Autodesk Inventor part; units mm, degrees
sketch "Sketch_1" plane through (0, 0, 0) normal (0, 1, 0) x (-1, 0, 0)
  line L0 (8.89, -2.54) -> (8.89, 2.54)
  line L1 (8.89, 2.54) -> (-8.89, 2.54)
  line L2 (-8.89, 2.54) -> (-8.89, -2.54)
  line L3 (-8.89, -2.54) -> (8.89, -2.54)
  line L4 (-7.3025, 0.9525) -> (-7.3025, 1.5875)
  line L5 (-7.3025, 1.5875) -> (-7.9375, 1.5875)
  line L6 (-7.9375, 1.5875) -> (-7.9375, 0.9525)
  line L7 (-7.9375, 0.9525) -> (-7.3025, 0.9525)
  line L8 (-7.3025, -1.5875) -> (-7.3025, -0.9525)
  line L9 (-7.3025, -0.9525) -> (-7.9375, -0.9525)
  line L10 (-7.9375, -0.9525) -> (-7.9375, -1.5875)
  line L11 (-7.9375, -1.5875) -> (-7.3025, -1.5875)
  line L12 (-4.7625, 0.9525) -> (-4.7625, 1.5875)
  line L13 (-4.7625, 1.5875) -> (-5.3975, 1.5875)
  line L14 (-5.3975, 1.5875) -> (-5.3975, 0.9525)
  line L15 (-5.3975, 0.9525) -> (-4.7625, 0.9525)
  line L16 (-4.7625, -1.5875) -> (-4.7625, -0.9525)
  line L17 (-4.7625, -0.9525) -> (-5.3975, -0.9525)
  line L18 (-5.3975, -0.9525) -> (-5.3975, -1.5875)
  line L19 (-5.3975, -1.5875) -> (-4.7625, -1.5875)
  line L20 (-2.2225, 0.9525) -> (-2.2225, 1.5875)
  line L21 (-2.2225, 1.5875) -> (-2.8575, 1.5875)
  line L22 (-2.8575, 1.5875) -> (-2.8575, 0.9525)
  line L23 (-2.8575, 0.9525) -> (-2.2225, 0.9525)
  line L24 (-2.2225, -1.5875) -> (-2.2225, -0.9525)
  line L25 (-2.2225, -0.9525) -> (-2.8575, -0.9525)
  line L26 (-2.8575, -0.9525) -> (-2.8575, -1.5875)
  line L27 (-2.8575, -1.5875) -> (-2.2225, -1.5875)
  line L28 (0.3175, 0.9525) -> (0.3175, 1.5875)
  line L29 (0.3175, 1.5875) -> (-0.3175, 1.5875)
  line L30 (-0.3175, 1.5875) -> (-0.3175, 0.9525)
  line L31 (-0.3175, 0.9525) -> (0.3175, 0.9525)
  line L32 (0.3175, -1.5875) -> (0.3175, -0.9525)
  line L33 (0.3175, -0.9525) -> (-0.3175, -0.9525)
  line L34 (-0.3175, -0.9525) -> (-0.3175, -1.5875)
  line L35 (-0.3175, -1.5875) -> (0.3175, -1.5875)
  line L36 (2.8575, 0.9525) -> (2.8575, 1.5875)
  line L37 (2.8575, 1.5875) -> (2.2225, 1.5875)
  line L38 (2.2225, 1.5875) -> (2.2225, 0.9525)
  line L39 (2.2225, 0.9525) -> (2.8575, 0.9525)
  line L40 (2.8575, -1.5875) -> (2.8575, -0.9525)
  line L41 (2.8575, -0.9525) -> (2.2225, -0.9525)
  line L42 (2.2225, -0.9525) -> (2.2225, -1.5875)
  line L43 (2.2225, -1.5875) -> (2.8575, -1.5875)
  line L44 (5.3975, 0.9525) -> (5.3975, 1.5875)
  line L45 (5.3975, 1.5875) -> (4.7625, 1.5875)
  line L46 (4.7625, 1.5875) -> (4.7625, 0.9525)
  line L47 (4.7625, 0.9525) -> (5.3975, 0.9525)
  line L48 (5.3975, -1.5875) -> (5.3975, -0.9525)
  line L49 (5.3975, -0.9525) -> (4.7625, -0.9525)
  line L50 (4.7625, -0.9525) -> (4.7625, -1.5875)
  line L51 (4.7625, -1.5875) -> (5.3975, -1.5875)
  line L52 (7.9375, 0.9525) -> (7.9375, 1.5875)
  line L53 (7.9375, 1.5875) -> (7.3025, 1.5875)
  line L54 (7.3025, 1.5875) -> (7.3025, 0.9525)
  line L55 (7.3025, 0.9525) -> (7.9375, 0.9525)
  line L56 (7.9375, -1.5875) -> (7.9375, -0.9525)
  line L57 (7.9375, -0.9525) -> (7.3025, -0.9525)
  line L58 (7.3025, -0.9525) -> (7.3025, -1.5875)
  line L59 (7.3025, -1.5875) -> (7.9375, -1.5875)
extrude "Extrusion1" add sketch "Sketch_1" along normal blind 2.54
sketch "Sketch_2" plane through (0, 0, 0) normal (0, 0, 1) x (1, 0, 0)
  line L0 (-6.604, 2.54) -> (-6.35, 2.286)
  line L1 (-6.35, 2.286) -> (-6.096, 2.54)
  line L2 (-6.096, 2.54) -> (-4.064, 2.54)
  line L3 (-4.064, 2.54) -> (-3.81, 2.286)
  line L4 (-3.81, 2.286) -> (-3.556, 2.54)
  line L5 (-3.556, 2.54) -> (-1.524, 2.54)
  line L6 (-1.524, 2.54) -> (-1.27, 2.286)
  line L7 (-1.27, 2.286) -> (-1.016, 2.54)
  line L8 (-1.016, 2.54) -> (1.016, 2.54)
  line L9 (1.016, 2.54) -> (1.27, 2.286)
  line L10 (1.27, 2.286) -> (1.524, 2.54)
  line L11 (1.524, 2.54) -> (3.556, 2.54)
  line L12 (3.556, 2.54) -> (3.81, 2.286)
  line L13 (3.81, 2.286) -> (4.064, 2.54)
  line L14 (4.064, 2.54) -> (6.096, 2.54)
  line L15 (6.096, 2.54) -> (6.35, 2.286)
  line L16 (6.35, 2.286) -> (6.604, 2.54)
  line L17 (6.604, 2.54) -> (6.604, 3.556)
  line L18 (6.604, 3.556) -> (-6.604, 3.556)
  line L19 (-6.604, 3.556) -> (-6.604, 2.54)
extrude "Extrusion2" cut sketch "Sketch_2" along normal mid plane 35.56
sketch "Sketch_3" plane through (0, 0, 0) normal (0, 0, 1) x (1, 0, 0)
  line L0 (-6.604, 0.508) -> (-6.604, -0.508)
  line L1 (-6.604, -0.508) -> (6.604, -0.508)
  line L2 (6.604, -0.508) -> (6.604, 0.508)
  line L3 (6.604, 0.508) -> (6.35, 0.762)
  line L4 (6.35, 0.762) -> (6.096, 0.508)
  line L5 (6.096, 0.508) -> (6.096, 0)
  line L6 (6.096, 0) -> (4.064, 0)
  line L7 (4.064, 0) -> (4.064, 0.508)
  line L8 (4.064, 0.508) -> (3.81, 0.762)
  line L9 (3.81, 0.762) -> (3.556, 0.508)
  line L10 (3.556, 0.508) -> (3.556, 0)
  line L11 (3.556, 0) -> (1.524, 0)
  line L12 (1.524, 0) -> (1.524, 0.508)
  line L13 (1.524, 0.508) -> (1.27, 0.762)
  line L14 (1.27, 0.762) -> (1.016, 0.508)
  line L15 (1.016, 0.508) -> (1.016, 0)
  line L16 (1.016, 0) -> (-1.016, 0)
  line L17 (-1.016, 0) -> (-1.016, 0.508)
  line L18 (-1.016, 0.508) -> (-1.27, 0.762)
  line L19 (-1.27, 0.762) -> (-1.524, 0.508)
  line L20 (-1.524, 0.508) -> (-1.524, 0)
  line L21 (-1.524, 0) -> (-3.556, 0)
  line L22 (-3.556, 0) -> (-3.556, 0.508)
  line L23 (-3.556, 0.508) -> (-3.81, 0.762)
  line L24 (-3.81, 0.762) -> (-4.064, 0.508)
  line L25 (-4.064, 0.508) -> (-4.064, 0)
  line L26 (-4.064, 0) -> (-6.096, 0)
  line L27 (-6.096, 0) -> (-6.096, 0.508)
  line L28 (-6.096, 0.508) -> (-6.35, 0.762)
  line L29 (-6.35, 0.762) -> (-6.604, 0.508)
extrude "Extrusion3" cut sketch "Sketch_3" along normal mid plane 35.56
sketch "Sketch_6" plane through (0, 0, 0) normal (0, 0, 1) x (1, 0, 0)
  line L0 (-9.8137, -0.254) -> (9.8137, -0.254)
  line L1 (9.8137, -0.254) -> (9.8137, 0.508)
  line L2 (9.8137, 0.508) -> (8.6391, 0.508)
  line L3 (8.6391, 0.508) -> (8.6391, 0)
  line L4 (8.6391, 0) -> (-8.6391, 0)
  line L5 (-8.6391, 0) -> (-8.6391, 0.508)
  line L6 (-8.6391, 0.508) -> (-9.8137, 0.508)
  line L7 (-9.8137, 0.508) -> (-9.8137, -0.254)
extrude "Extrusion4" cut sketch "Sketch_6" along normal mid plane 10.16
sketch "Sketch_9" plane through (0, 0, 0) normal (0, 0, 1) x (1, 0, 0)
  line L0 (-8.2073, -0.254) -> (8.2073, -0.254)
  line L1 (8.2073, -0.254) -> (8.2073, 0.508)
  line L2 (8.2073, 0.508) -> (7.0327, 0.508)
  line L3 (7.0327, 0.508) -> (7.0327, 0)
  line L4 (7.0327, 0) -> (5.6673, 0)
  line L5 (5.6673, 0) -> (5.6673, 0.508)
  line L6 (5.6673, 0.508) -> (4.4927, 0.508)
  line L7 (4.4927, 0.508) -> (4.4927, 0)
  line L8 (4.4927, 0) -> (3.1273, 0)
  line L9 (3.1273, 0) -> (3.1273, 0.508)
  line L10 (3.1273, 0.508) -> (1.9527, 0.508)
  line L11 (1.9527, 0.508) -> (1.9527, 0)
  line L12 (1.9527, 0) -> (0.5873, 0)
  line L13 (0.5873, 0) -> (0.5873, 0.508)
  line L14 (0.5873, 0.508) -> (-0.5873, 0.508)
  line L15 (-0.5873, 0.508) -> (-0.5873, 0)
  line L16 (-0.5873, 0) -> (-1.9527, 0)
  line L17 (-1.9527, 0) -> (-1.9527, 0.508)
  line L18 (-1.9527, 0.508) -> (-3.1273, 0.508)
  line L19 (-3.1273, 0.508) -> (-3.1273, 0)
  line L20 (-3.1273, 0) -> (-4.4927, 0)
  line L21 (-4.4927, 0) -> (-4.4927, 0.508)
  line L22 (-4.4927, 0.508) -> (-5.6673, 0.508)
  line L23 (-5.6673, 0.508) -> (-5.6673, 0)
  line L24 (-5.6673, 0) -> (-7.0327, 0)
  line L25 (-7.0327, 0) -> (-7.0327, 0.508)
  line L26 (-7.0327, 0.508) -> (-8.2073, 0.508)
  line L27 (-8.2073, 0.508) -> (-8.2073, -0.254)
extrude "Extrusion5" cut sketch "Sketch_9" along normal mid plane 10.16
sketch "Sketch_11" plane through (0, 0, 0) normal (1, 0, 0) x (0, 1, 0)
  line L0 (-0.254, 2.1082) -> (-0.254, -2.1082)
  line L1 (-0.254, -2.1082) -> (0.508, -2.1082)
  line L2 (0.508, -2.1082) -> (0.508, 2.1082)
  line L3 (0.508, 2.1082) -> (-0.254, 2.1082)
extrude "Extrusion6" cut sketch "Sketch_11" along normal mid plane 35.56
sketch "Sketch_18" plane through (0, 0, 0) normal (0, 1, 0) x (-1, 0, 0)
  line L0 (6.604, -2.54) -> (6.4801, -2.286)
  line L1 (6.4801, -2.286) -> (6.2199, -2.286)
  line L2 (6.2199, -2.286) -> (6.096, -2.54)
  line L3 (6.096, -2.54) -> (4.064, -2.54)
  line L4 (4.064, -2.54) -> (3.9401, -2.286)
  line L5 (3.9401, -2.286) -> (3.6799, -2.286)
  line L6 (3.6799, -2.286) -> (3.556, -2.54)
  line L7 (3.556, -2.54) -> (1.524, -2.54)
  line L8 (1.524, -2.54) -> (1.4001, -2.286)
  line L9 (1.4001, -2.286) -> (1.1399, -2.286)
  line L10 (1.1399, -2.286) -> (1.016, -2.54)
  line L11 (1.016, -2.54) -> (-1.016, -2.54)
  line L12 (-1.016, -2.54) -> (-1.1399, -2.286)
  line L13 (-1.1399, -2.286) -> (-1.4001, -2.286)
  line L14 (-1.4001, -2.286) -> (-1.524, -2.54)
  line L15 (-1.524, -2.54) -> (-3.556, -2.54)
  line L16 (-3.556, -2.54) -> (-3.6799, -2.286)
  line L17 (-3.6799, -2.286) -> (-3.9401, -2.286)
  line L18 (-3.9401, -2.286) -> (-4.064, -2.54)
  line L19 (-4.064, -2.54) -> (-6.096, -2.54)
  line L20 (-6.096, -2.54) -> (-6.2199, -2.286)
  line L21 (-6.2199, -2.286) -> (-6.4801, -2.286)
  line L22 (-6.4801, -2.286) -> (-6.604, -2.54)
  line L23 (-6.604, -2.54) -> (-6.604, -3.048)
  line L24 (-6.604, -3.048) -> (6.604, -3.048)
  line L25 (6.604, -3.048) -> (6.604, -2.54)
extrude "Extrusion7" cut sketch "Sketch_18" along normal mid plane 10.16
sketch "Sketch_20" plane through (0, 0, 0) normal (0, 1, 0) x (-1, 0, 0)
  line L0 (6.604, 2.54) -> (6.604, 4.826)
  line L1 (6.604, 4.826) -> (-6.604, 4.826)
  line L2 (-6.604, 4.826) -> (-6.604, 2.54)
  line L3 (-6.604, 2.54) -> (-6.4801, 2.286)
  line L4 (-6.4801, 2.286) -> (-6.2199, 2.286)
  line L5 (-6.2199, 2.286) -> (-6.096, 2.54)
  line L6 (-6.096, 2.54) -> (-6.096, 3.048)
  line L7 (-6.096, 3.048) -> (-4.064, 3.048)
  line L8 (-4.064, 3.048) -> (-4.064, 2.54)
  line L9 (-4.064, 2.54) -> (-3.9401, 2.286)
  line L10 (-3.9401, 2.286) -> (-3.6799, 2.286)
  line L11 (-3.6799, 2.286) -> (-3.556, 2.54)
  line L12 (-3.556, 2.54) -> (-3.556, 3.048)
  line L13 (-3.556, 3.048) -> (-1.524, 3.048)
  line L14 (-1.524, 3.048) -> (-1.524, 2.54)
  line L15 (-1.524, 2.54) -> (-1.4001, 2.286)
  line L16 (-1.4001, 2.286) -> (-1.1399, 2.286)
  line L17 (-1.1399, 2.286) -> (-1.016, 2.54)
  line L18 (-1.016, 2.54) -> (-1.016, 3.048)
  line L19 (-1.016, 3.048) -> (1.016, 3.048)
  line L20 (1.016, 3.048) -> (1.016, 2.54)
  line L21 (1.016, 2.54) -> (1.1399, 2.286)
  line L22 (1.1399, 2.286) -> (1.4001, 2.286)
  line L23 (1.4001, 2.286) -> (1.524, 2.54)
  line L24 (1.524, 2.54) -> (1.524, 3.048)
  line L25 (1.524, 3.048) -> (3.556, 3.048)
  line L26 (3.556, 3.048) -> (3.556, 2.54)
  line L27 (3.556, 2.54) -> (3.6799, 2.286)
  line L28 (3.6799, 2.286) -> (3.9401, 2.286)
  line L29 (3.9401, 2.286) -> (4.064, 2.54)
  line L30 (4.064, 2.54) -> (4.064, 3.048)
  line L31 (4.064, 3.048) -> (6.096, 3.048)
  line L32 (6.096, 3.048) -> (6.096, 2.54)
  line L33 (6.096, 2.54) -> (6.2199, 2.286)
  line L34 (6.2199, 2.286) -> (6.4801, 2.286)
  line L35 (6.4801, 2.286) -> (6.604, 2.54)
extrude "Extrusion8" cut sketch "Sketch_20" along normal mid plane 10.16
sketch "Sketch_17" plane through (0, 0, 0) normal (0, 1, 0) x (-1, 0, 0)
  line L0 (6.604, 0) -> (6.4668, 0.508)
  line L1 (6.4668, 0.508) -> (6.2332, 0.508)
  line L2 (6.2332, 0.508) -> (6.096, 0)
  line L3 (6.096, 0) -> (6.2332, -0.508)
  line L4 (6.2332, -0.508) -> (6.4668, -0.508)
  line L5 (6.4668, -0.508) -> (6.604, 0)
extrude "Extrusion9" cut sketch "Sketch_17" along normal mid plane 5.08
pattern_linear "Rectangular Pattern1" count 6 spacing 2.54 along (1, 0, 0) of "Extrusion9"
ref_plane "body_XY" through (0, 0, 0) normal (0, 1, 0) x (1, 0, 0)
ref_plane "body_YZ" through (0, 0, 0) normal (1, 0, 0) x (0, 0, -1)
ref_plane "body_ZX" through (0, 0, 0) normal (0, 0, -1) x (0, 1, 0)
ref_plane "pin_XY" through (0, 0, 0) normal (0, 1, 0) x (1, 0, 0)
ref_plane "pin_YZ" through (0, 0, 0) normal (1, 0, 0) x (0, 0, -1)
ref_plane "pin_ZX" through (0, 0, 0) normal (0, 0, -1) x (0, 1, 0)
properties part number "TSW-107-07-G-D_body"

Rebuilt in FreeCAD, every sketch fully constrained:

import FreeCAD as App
import Part
import Sketcher

V = App.Vector
Q = App.Units.Quantity


def add_polygon(sketch, points):
    """Adds a closed chain of lines whose ends are joined by coincident constraints."""
    first, n = sketch.GeometryCount, len(points)
    for a, b in zip(points, points[1:] + points[:1]):
        sketch.addGeometry(Part.LineSegment(App.Vector(*a, 0), App.Vector(*b, 0)), False)
    for i in range(n):
        sketch.addConstraint(Sketcher.Constraint("Coincident", first + i, 2, first + (i + 1) % n, 1))

doc = App.newDocument("Part")
params = doc.addObject("Spreadsheet::Sheet", "Params")
for row, (alias, value) in enumerate([
    ("sketch1_width", "0.7 in"),
    ("sketch1_height", "0.2 in"),
    ("sketch1_width2", "0.025 in"),
    ("pad1_length", "0.1 in"),
    ("sketch2_width", "0.08 in"),
    ("sketch2_width2", "0.52 in"),
    ("sketch2_height", "0.04 in"),
    ("pocket1_length", "1.4 in"),
    ("sketch3_width", "0.52 in"),
    ("sketch3_width2", "0.08 in"),
    ("sketch3_height", "0.04 in"),
    ("pocket2_length", "1.4 in"),
    ("sketch4_height", "0.03 in"),
    ("sketch4_height2", "0.02 in"),
    ("pocket3_length", "0.4 in"),
    ("sketch5_height", "0.03 in"),
    ("sketch5_height2", "0.02 in"),
    ("pocket4_length", "0.4 in"),
    ("sketch6_width", "0.03 in"),
    ("sketch6_height", "0.166 in"),
    ("pocket5_length", "1.4 in"),
    ("sketch7_width", "0.08 in"),
    ("sketch7_width2", "0.52 in"),
    ("sketch7_height", "0.02 in"),
    ("pocket6_length", "0.4 in"),
    ("sketch8_width", "0.52 in"),
    ("sketch8_width2", "0.08 in"),
    ("sketch8_height", "0.09 in"),
    ("sketch8_height2", "0.02 in"),
    ("pocket7_length", "0.4 in"),
    ("pocket8_length", "0.2 in"),
    ("linearpattern_pitch", "0.1 in"),
], start=1):
    params.set(f"A{row}", alias)
    params.set(f"B{row}", "=" + value)
    params.setAlias(f"B{row}", alias)

body = doc.addObject("PartDesign::Body", "Body")

# Sketch on XZ plane
sketch1 = doc.addObject("Sketcher::SketchObject", "Sketch")
body.addObject(sketch1)
sketch1.AttachmentSupport = (doc.XZ_Plane, [""])
sketch1.MapMode = "FlatFace"
add_polygon(sketch1, [(8.9, -2.5), (-8.9, -2.5), (-8.9, 2.5), (8.9, 2.5)])  # lines 0-3
add_polygon(sketch1, [(7.3, -1), (7.3, -1.6), (7.9, -1.6), (7.9, -1)])  # lines 4-7
add_polygon(sketch1, [(4.8, -1), (4.8, -1.6), (5.4, -1.6), (5.4, -1)])  # lines 8-11
add_polygon(sketch1, [(2.2, -1), (2.2, -1.6), (2.9, -1.6), (2.9, -1)])  # lines 12-15
add_polygon(sketch1, [(-0.3, -1), (-0.3, -1.6), (0.3, -1.6), (0.3, -1)])  # lines 16-19
add_polygon(sketch1, [(-2.9, -1), (-2.9, -1.6), (-2.2, -1.6), (-2.2, -1)])  # lines 20-23
add_polygon(sketch1, [(-5.4, -1), (-5.4, -1.6), (-4.8, -1.6), (-4.8, -1)])  # lines 24-27
add_polygon(sketch1, [(-7.9, -1), (-7.9, -1.6), (-7.3, -1.6), (-7.3, -1)])  # lines 28-31
add_polygon(sketch1, [(7.3, 1.6), (7.3, 1), (7.9, 1), (7.9, 1.6)])  # lines 32-35
add_polygon(sketch1, [(4.8, 1.6), (4.8, 1), (5.4, 1), (5.4, 1.6)])  # lines 36-39
add_polygon(sketch1, [(2.2, 1.6), (2.2, 1), (2.9, 1), (2.9, 1.6)])  # lines 40-43
add_polygon(sketch1, [(-0.3, 1.6), (-0.3, 1), (0.3, 1), (0.3, 1.6)])  # lines 44-47
add_polygon(sketch1, [(-2.9, 1.6), (-2.9, 1), (-2.2, 1), (-2.2, 1.6)])  # lines 48-51
add_polygon(sketch1, [(-5.4, 1.6), (-5.4, 1), (-4.8, 1), (-4.8, 1.6)])  # lines 52-55
add_polygon(sketch1, [(-7.9, 1.6), (-7.9, 1), (-7.3, 1), (-7.3, 1.6)])  # lines 56-59
sketch1.addConstraint(Sketcher.Constraint("Horizontal", 0))
sketch1.addConstraint(Sketcher.Constraint("Vertical", 1))
sketch1.addConstraint(Sketcher.Constraint("Horizontal", 2))
sketch1.addConstraint(Sketcher.Constraint("Vertical", 3))
sketch1.addConstraint(Sketcher.Constraint("Vertical", 4))
sketch1.addConstraint(Sketcher.Constraint("Horizontal", 5))
sketch1.addConstraint(Sketcher.Constraint("Vertical", 6))
sketch1.addConstraint(Sketcher.Constraint("Horizontal", 7))
sketch1.addConstraint(Sketcher.Constraint("Vertical", 8))
sketch1.addConstraint(Sketcher.Constraint("Horizontal", 9))
sketch1.addConstraint(Sketcher.Constraint("Vertical", 10))
sketch1.addConstraint(Sketcher.Constraint("Horizontal", 11))
sketch1.addConstraint(Sketcher.Constraint("Vertical", 12))
sketch1.addConstraint(Sketcher.Constraint("Horizontal", 13))
sketch1.addConstraint(Sketcher.Constraint("Vertical", 14))
sketch1.addConstraint(Sketcher.Constraint("Horizontal", 15))
sketch1.addConstraint(Sketcher.Constraint("Vertical", 16))
sketch1.addConstraint(Sketcher.Constraint("Horizontal", 17))
sketch1.addConstraint(Sketcher.Constraint("Vertical", 18))
sketch1.addConstraint(Sketcher.Constraint("Horizontal", 19))
sketch1.addConstraint(Sketcher.Constraint("Vertical", 20))
sketch1.addConstraint(Sketcher.Constraint("Horizontal", 21))
sketch1.addConstraint(Sketcher.Constraint("Vertical", 22))
sketch1.addConstraint(Sketcher.Constraint("Horizontal", 23))
sketch1.addConstraint(Sketcher.Constraint("Vertical", 24))
sketch1.addConstraint(Sketcher.Constraint("Horizontal", 25))
sketch1.addConstraint(Sketcher.Constraint("Vertical", 26))
sketch1.addConstraint(Sketcher.Constraint("Horizontal", 27))
sketch1.addConstraint(Sketcher.Constraint("Vertical", 28))
sketch1.addConstraint(Sketcher.Constraint("Horizontal", 29))
sketch1.addConstraint(Sketcher.Constraint("Vertical", 30))
sketch1.addConstraint(Sketcher.Constraint("Horizontal", 31))
sketch1.addConstraint(Sketcher.Constraint("Vertical", 32))
sketch1.addConstraint(Sketcher.Constraint("Horizontal", 33))
sketch1.addConstraint(Sketcher.Constraint("Vertical", 34))
sketch1.addConstraint(Sketcher.Constraint("Horizontal", 35))
sketch1.addConstraint(Sketcher.Constraint("Vertical", 36))
sketch1.addConstraint(Sketcher.Constraint("Horizontal", 37))
sketch1.addConstraint(Sketcher.Constraint("Vertical", 38))
sketch1.addConstraint(Sketcher.Constraint("Horizontal", 39))
sketch1.addConstraint(Sketcher.Constraint("Vertical", 40))
sketch1.addConstraint(Sketcher.Constraint("Horizontal", 41))
sketch1.addConstraint(Sketcher.Constraint("Vertical", 42))
sketch1.addConstraint(Sketcher.Constraint("Horizontal", 43))
sketch1.addConstraint(Sketcher.Constraint("Vertical", 44))
sketch1.addConstraint(Sketcher.Constraint("Horizontal", 45))
sketch1.addConstraint(Sketcher.Constraint("Vertical", 46))
sketch1.addConstraint(Sketcher.Constraint("Horizontal", 47))
sketch1.addConstraint(Sketcher.Constraint("Vertical", 48))
sketch1.addConstraint(Sketcher.Constraint("Horizontal", 49))
sketch1.addConstraint(Sketcher.Constraint("Vertical", 50))
sketch1.addConstraint(Sketcher.Constraint("Horizontal", 51))
sketch1.addConstraint(Sketcher.Constraint("Vertical", 52))
sketch1.addConstraint(Sketcher.Constraint("Horizontal", 53))
sketch1.addConstraint(Sketcher.Constraint("Vertical", 54))
sketch1.addConstraint(Sketcher.Constraint("Horizontal", 55))
sketch1.addConstraint(Sketcher.Constraint("Vertical", 56))
sketch1.addConstraint(Sketcher.Constraint("Horizontal", 57))
sketch1.addConstraint(Sketcher.Constraint("Vertical", 58))
sketch1.addConstraint(Sketcher.Constraint("Horizontal", 59))
sketch1.addConstraint(Sketcher.Constraint("Symmetric", 0, 2, 2, 2, -1, 1))
sketch1.addConstraint(Sketcher.Constraint("Symmetric", 30, 2, 32, 2, -1, 1))
sketch1.addConstraint(Sketcher.Constraint("Symmetric", 28, 2, 34, 2, -1, 1))
sketch1.addConstraint(Sketcher.Constraint("Symmetric", 26, 2, 36, 2, -1, 1))
sketch1.addConstraint(Sketcher.Constraint("Symmetric", 24, 2, 38, 2, -1, 1))
sketch1.addConstraint(Sketcher.Constraint("Symmetric", 22, 2, 40, 2, -1, 1))
sketch1.addConstraint(Sketcher.Constraint("Symmetric", 20, 2, 42, 2, -1, 1))
sketch1.addConstraint(Sketcher.Constraint("Symmetric", 18, 2, 44, 2, -1, 1))
sketch1.addConstraint(Sketcher.Constraint("Symmetric", 16, 2, 46, 2, -1, 1))
sketch1.addConstraint(Sketcher.Constraint("Symmetric", 14, 2, 48, 2, -1, 1))
sketch1.addConstraint(Sketcher.Constraint("Symmetric", 12, 2, 50, 2, -1, 1))
sketch1.addConstraint(Sketcher.Constraint("Symmetric", 10, 2, 52, 2, -1, 1))
sketch1.addConstraint(Sketcher.Constraint("Symmetric", 8, 2, 54, 2, -1, 1))
sketch1.addConstraint(Sketcher.Constraint("Symmetric", 6, 2, 56, 2, -1, 1))
sketch1.addConstraint(Sketcher.Constraint("Symmetric", 4, 2, 58, 2, -1, 1))
sketch1.addConstraint(Sketcher.Constraint("Symmetric", 13, 2, 20, 2, -2))
sketch1.addConstraint(Sketcher.Constraint("Symmetric", 15, 2, 22, 2, -2))
sketch1.addConstraint(Sketcher.Constraint("Symmetric", 9, 2, 24, 2, -2))
sketch1.addConstraint(Sketcher.Constraint("Symmetric", 11, 2, 26, 2, -2))
sketch1.addConstraint(Sketcher.Constraint("Symmetric", 5, 2, 28, 2, -2))
sketch1.addConstraint(Sketcher.Constraint("Symmetric", 7, 2, 30, 2, -2))
sketch1.addConstraint(Sketcher.Constraint("Horizontal", 5, 2, 8, 2))
sketch1.addConstraint(Sketcher.Constraint("Horizontal", 7, 2, 10, 2))
sketch1.addConstraint(Sketcher.Constraint("Horizontal", 9, 2, 12, 2))
sketch1.addConstraint(Sketcher.Constraint("Horizontal", 11, 2, 14, 2))
sketch1.addConstraint(Sketcher.Constraint("Horizontal", 13, 2, 16, 2))
sketch1.addConstraint(Sketcher.Constraint("Horizontal", 15, 2, 18, 2))
sketch1.addConstraint(Sketcher.Constraint("Vertical", 19, 2, 44, 2))
sketch1.addConstraint(Sketcher.Constraint("Equal", 7, 9))
sketch1.addConstraint(Sketcher.Constraint("Equal", 11, 13))
sketch1.addConstraint(Sketcher.Constraint("Equal", 15, 17))
sketch1.addConstraint(Sketcher.Constraint("Equal", 59, 4))
sketch1.addConstraint(Sketcher.Constraint("DistanceX", 0, 2, 0, 1, Q("0.7 in")))
sketch1.addConstraint(Sketcher.Constraint("DistanceY", 1, 1, 1, 2, Q("0.2 in")))
sketch1.addConstraint(Sketcher.Constraint("DistanceX", 8, 2, 4, 2, Q("0.1 in")))
sketch1.addConstraint(Sketcher.Constraint("DistanceX", 12, 2, 8, 2, Q("0.1 in")))
sketch1.addConstraint(Sketcher.Constraint("DistanceX", 16, 2, 12, 2, Q("0.1 in")))
sketch1.addConstraint(Sketcher.Constraint("DistanceY", 4, 2, 32, 2, Q("0.1 in")))
sketch1.addConstraint(Sketcher.Constraint("DistanceX", 5, 1, 5, 2, Q("0.025 in")))
sketch1.setExpression("Constraints[152]", "Params.sketch1_width")
sketch1.setExpression("Constraints[153]", "Params.sketch1_height")
sketch1.setExpression("Constraints[158]", "Params.sketch1_width2")
pad1 = doc.addObject("PartDesign::Pad", "Pad")
body.addObject(pad1)
pad1.Profile = sketch1
pad1.setExpression("Length", "Params.pad1_length")
pad1.Reversed = True

# Sketch on XY plane
sketch2 = doc.addObject("Sketcher::SketchObject", "Sketch001")
body.addObject(sketch2)
sketch2.AttachmentSupport = (doc.XY_Plane, [""])
sketch2.MapMode = "FlatFace"
add_polygon(sketch2, [(-6.6, 3.56), (-6.6, 2.54), (-6.35, 2.29), (-6.1, 2.54), (-4.06, 2.54), (-3.81, 2.29), (-3.56, 2.54), (-1.52, 2.54), (-1.27, 2.29), (-1.02, 2.54), (1.02, 2.54), (1.27, 2.29), (1.52, 2.54), (3.56, 2.54), (3.81, 2.29), (4.06, 2.54), (6.1, 2.54), (6.35, 2.29), (6.6, 2.54), (6.6, 3.56)])  # lines 0-19
sketch2.addConstraint(Sketcher.Constraint("Vertical", 0))
sketch2.addConstraint(Sketcher.Constraint("Horizontal", 3))
sketch2.addConstraint(Sketcher.Constraint("Horizontal", 6))
sketch2.addConstraint(Sketcher.Constraint("Horizontal", 9))
sketch2.addConstraint(Sketcher.Constraint("Horizontal", 12))
sketch2.addConstraint(Sketcher.Constraint("Horizontal", 15))
sketch2.addConstraint(Sketcher.Constraint("Vertical", 18))
sketch2.addConstraint(Sketcher.Constraint("Horizontal", 19))
sketch2.addConstraint(Sketcher.Constraint("Symmetric", 7, 2, 10, 2, -2))
sketch2.addConstraint(Sketcher.Constraint("Symmetric", 6, 2, 11, 2, -2))
sketch2.addConstraint(Sketcher.Constraint("Symmetric", 4, 2, 13, 2, -2))
sketch2.addConstraint(Sketcher.Constraint("Symmetric", 3, 2, 14, 2, -2))
sketch2.addConstraint(Sketcher.Constraint("Symmetric", 1, 2, 16, 2, -2))
sketch2.addConstraint(Sketcher.Constraint("Symmetric", 0, 2, 17, 2, -2))
sketch2.addConstraint(Sketcher.Constraint("Perpendicular", 1, 2))
sketch2.addConstraint(Sketcher.Constraint("Perpendicular", 2, 4))
sketch2.addConstraint(Sketcher.Constraint("Perpendicular", 4, 5))
sketch2.addConstraint(Sketcher.Constraint("Perpendicular", 5, 7))
sketch2.addConstraint(Sketcher.Constraint("Perpendicular", 7, 8))
sketch2.addConstraint(Sketcher.Constraint("Perpendicular", 8, 10))
sketch2.addConstraint(Sketcher.Constraint("Perpendicular", 10, 11))
sketch2.addConstraint(Sketcher.Constraint("Perpendicular", 11, 13))
sketch2.addConstraint(Sketcher.Constraint("Perpendicular", 14, 16))
sketch2.addConstraint(Sketcher.Constraint("Horizontal", 0, 2, 2, 2))
sketch2.addConstraint(Sketcher.Constraint("Horizontal", 1, 2, 4, 2))
sketch2.addConstraint(Sketcher.Constraint("Horizontal", 3, 2, 5, 2))
sketch2.addConstraint(Sketcher.Constraint("Horizontal", 4, 2, 7, 2))
sketch2.addConstraint(Sketcher.Constraint("Horizontal", 6, 2, 8, 2))
sketch2.addConstraint(Sketcher.Constraint("Equal", 3, 6))
sketch2.addConstraint(Sketcher.Constraint("Equal", 6, 9))
sketch2.addConstraint(Sketcher.Constraint("DistanceX", 3, 1, 3, 2, Q("0.08 in")))
sketch2.addConstraint(Sketcher.Constraint("DistanceX", 19, 2, 19, 1, Q("0.52 in")))
sketch2.addConstraint(Sketcher.Constraint("DistanceY", 0, 2, 0, 1, Q("0.04 in")))
sketch2.addConstraint(Sketcher.Constraint("DistanceY", -1, 1, 0, 2, Q("0.1 in")))
sketch2.setExpression("Constraints[50]", "Params.sketch2_width")
sketch2.setExpression("Constraints[51]", "Params.sketch2_width2")
sketch2.setExpression("Constraints[52]", "Params.sketch2_height")
pocket1 = doc.addObject("PartDesign::Pocket", "Pocket")
body.addObject(pocket1)
pocket1.Profile = sketch2
pocket1.setExpression("Length", "Params.pocket1_length")
pocket1.Midplane = True

# Sketch on XY plane
sketch3 = doc.addObject("Sketcher::SketchObject", "Sketch002")
body.addObject(sketch3)
sketch3.AttachmentSupport = (doc.XY_Plane, [""])
sketch3.MapMode = "FlatFace"
add_polygon(sketch3, [(-6.35, 0.76), (-6.6, 0.51), (-6.6, -0.51), (6.6, -0.51), (6.6, 0.51), (6.35, 0.76), (6.1, 0.51), (6.1, 0), (4.06, 0), (4.06, 0.51), (3.81, 0.76), (3.56, 0.51), (3.56, 0), (1.52, 0), (1.52, 0.51), (1.27, 0.76), (1.02, 0.51), (1.02, 0), (-1.02, 0), (-1.02, 0.51), (-1.27, 0.76), (-1.52, 0.51), (-1.52, 0), (-3.56, 0), (-3.56, 0.51), (-3.81, 0.76), (-4.06, 0.51), (-4.06, 0), (-6.1, 0), (-6.1, 0.51)])  # lines 0-29
sketch3.addConstraint(Sketcher.Constraint("Vertical", 1))
sketch3.addConstraint(Sketcher.Constraint("Horizontal", 2))
sketch3.addConstraint(Sketcher.Constraint("Vertical", 3))
sketch3.addConstraint(Sketcher.Constraint("Vertical", 6))
sketch3.addConstraint(Sketcher.Constraint("Horizontal", 7))
sketch3.addConstraint(Sketcher.Constraint("Vertical", 8))
sketch3.addConstraint(Sketcher.Constraint("Vertical", 11))
sketch3.addConstraint(Sketcher.Constraint("Horizontal", 12))
sketch3.addConstraint(Sketcher.Constraint("Vertical", 13))
sketch3.addConstraint(Sketcher.Constraint("Vertical", 16))
sketch3.addConstraint(Sketcher.Constraint("Horizontal", 17))
sketch3.addConstraint(Sketcher.Constraint("Vertical", 18))
sketch3.addConstraint(Sketcher.Constraint("Vertical", 21))
sketch3.addConstraint(Sketcher.Constraint("Horizontal", 22))
sketch3.addConstraint(Sketcher.Constraint("Vertical", 23))
sketch3.addConstraint(Sketcher.Constraint("Vertical", 26))
sketch3.addConstraint(Sketcher.Constraint("Horizontal", 27))
sketch3.addConstraint(Sketcher.Constraint("Vertical", 28))
sketch3.addConstraint(Sketcher.Constraint("Symmetric", 0, 2, 2, 2, -1, 1))
sketch3.addConstraint(Sketcher.Constraint("Symmetric", 16, 2, 17, 2, -1, 1))
sketch3.addConstraint(Sketcher.Constraint("Symmetric", 12, 2, 21, 2, -1, 1))
sketch3.addConstraint(Sketcher.Constraint("Symmetric", 7, 2, 26, 2, -1, 1))
sketch3.addConstraint(Sketcher.Constraint("Symmetric", 14, 2, 19, 2, -2))
sketch3.addConstraint(Sketcher.Constraint("Symmetric", 11, 2, 22, 2, -2))
sketch3.addConstraint(Sketcher.Constraint("Symmetric", 9, 2, 24, 2, -2))
sketch3.addConstraint(Sketcher.Constraint("Symmetric", 6, 2, 27, 2, -2))
sketch3.addConstraint(Sketcher.Constraint("Symmetric", 4, 2, 29, 2, -2))
sketch3.addConstraint(Sketcher.Constraint("Perpendicular", 0, 4))
sketch3.addConstraint(Sketcher.Constraint("Perpendicular", 4, 5))
sketch3.addConstraint(Sketcher.Constraint("Perpendicular", 5, 9))
sketch3.addConstraint(Sketcher.Constraint("Perpendicular", 9, 10))
sketch3.addConstraint(Sketcher.Constraint("Perpendicular", 10, 14))
sketch3.addConstraint(Sketcher.Constraint("Perpendicular", 14, 15))
sketch3.addConstraint(Sketcher.Constraint("Perpendicular", 15, 19))
sketch3.addConstraint(Sketcher.Constraint("Perpendicular", 19, 20))
sketch3.addConstraint(Sketcher.Constraint("Perpendicular", 20, 24))
sketch3.addConstraint(Sketcher.Constraint("Perpendicular", 24, 25))
sketch3.addConstraint(Sketcher.Constraint("Perpendicular", 25, 29))
sketch3.addConstraint(Sketcher.Constraint("Horizontal", 0, 2, 3, 2))
sketch3.addConstraint(Sketcher.Constraint("Horizontal", 3, 2, 5, 2))
sketch3.addConstraint(Sketcher.Constraint("Horizontal", 5, 2, 8, 2))
sketch3.addConstraint(Sketcher.Constraint("Horizontal", 4, 2, 9, 2))
sketch3.addConstraint(Sketcher.Constraint("Horizontal", 8, 2, 10, 2))
sketch3.addConstraint(Sketcher.Constraint("Horizontal", 10, 2, 13, 2))
sketch3.addConstraint(Sketcher.Constraint("Horizontal", 9, 2, 14, 2))
sketch3.addConstraint(Sketcher.Constraint("Horizontal", 13, 2, 15, 2))
sketch3.addConstraint(Sketcher.Constraint("Equal", 7, 12))
sketch3.addConstraint(Sketcher.Constraint("Equal", 12, 17))
sketch3.addConstraint(Sketcher.Constraint("DistanceX", 2, 1, 2, 2, Q("0.52 in")))
sketch3.addConstraint(Sketcher.Constraint("DistanceX", 7, 2, 7, 1, Q("0.08 in")))
sketch3.addConstraint(Sketcher.Constraint("DistanceY", 1, 2, 1, 1, Q("0.04 in")))
sketch3.setExpression("Constraints[78]", "Params.sketch3_width")
sketch3.setExpression("Constraints[79]", "Params.sketch3_width2")
sketch3.setExpression("Constraints[80]", "Params.sketch3_height")
pocket2 = doc.addObject("PartDesign::Pocket", "Pocket001")
body.addObject(pocket2)
pocket2.Profile = sketch3
pocket2.setExpression("Length", "Params.pocket2_length")
pocket2.Midplane = True

# Sketch on XY plane
sketch4 = doc.addObject("Sketcher::SketchObject", "Sketch003")
body.addObject(sketch4)
sketch4.AttachmentSupport = (doc.XY_Plane, [""])
sketch4.MapMode = "FlatFace"
add_polygon(sketch4, [(-9.8, 0.5), (-9.8, -0.3), (9.8, -0.3), (9.8, 0.5), (8.6, 0.5), (8.6, 0), (-8.6, 0), (-8.6, 0.5)])  # lines 0-7
sketch4.addConstraint(Sketcher.Constraint("Vertical", 0))
sketch4.addConstraint(Sketcher.Constraint("Horizontal", 1))
sketch4.addConstraint(Sketcher.Constraint("Vertical", 2))
sketch4.addConstraint(Sketcher.Constraint("Horizontal", 3))
sketch4.addConstraint(Sketcher.Constraint("Vertical", 4))
sketch4.addConstraint(Sketcher.Constraint("Horizontal", 5))
sketch4.addConstraint(Sketcher.Constraint("Vertical", 6))
sketch4.addConstraint(Sketcher.Constraint("Horizontal", 7))
sketch4.addConstraint(Sketcher.Constraint("Symmetric", 4, 2, 5, 2, -1, 1))
sketch4.addConstraint(Sketcher.Constraint("Symmetric", 2, 2, 7, 2, -2))
sketch4.addConstraint(Sketcher.Constraint("DistanceY", 0, 2, 0, 1, Q("0.03 in")))
sketch4.addConstraint(Sketcher.Constraint("DistanceY", 4, 2, 4, 1, Q("0.02 in")))
sketch4.addConstraint(Sketcher.Constraint("DistanceX", 1, 1, 1, 2, 19.6274))
sketch4.addConstraint(Sketcher.Constraint("DistanceX", 3, 2, 3, 1, 1.1746))
sketch4.setExpression("Constraints[18]", "Params.sketch4_height")
sketch4.setExpression("Constraints[19]", "Params.sketch4_height2")
pocket3 = doc.addObject("PartDesign::Pocket", "Pocket002")
body.addObject(pocket3)
pocket3.Profile = sketch4
pocket3.setExpression("Length", "Params.pocket3_length")
pocket3.Midplane = True

# Sketch on XY plane
sketch5 = doc.addObject("Sketcher::SketchObject", "Sketch004")
body.addObject(sketch5)
sketch5.AttachmentSupport = (doc.XY_Plane, [""])
sketch5.MapMode = "FlatFace"
add_polygon(sketch5, [(-8.2, 0.5), (-8.2, -0.3), (8.2, -0.3), (8.2, 0.5), (7, 0.5), (7, 0), (5.7, 0), (5.7, 0.5), (4.5, 0.5), (4.5, 0), (3.1, 0), (3.1, 0.5), (2, 0.5), (2, 0), (0.6, 0), (0.6, 0.5), (-0.6, 0.5), (-0.6, 0), (-2, 0), (-2, 0.5), (-3.1, 0.5), (-3.1, 0), (-4.5, 0), (-4.5, 0.5), (-5.7, 0.5), (-5.7, 0), (-7, 0), (-7, 0.5)])  # lines 0-27
sketch5.addConstraint(Sketcher.Constraint("Vertical", 0))
sketch5.addConstraint(Sketcher.Constraint("Horizontal", 1))
sketch5.addConstraint(Sketcher.Constraint("Vertical", 2))
sketch5.addConstraint(Sketcher.Constraint("Horizontal", 3))
sketch5.addConstraint(Sketcher.Constraint("Vertical", 4))
sketch5.addConstraint(Sketcher.Constraint("Horizontal", 5))
sketch5.addConstraint(Sketcher.Constraint("Vertical", 6))
sketch5.addConstraint(Sketcher.Constraint("Horizontal", 7))
sketch5.addConstraint(Sketcher.Constraint("Vertical", 8))
sketch5.addConstraint(Sketcher.Constraint("Horizontal", 9))
sketch5.addConstraint(Sketcher.Constraint("Vertical", 10))
sketch5.addConstraint(Sketcher.Constraint("Horizontal", 11))
sketch5.addConstraint(Sketcher.Constraint("Vertical", 12))
sketch5.addConstraint(Sketcher.Constraint("Horizontal", 13))
sketch5.addConstraint(Sketcher.Constraint("Vertical", 14))
sketch5.addConstraint(Sketcher.Constraint("Horizontal", 15))
sketch5.addConstraint(Sketcher.Constraint("Vertical", 16))
sketch5.addConstraint(Sketcher.Constraint("Horizontal", 17))
sketch5.addConstraint(Sketcher.Constraint("Vertical", 18))
sketch5.addConstraint(Sketcher.Constraint("Horizontal", 19))
sketch5.addConstraint(Sketcher.Constraint("Vertical", 20))
sketch5.addConstraint(Sketcher.Constraint("Horizontal", 21))
sketch5.addConstraint(Sketcher.Constraint("Vertical", 22))
sketch5.addConstraint(Sketcher.Constraint("Horizontal", 23))
sketch5.addConstraint(Sketcher.Constraint("Vertical", 24))
sketch5.addConstraint(Sketcher.Constraint("Horizontal", 25))
sketch5.addConstraint(Sketcher.Constraint("Vertical", 26))
sketch5.addConstraint(Sketcher.Constraint("Horizontal", 27))
sketch5.addConstraint(Sketcher.Constraint("Symmetric", 13, 2, 16, 2, -1, 1))
sketch5.addConstraint(Sketcher.Constraint("Symmetric", 9, 2, 20, 2, -1, 1))
sketch5.addConstraint(Sketcher.Constraint("Symmetric", 5, 2, 24, 2, -1, 1))
sketch5.addConstraint(Sketcher.Constraint("Symmetric", 12, 2, 17, 2, -2))
sketch5.addConstraint(Sketcher.Constraint("Symmetric", 8, 2, 21, 2, -2))
sketch5.addConstraint(Sketcher.Constraint("Symmetric", 4, 2, 25, 2, -2))
sketch5.addConstraint(Sketcher.Constraint("Symmetric", 2, 2, 27, 2, -2))
sketch5.addConstraint(Sketcher.Constraint("Horizontal", 3, 2, 6, 2))
sketch5.addConstraint(Sketcher.Constraint("Horizontal", 7, 2, 10, 2))
sketch5.addConstraint(Sketcher.Constraint("Horizontal", 11, 2, 14, 2))
sketch5.addConstraint(Sketcher.Constraint("Horizontal", 15, 2, 18, 2))
sketch5.addConstraint(Sketcher.Constraint("Horizontal", 19, 2, 22, 2))
sketch5.addConstraint(Sketcher.Constraint("Equal", 3, 7))
sketch5.addConstraint(Sketcher.Constraint("Equal", 5, 9))
sketch5.addConstraint(Sketcher.Constraint("Equal", 7, 11))
sketch5.addConstraint(Sketcher.Constraint("Equal", 9, 13))
sketch5.addConstraint(Sketcher.Constraint("Equal", 11, 15))
sketch5.addConstraint(Sketcher.Constraint("DistanceY", 0, 2, 0, 1, Q("0.03 in")))
sketch5.addConstraint(Sketcher.Constraint("DistanceY", 4, 2, 4, 1, Q("0.02 in")))
sketch5.addConstraint(Sketcher.Constraint("DistanceX", 0, 2, 3, 2, Q("0.6 in")))
sketch5.addConstraint(Sketcher.Constraint("DistanceX", 1, 1, 1, 2, 16.4146))
sketch5.setExpression("Constraints[73]", "Params.sketch5_height")
sketch5.setExpression("Constraints[74]", "Params.sketch5_height2")
pocket4 = doc.addObject("PartDesign::Pocket", "Pocket003")
body.addObject(pocket4)
pocket4.Profile = sketch5
pocket4.setExpression("Length", "Params.pocket4_length")
pocket4.Midplane = True

# Sketch on YZ plane
sketch6 = doc.addObject("Sketcher::SketchObject", "Sketch005")
body.addObject(sketch6)
sketch6.AttachmentSupport = (doc.YZ_Plane, [""])
sketch6.MapMode = "FlatFace"
add_polygon(sketch6, [(0.5, 2.1), (-0.3, 2.1), (-0.3, -2.1), (0.5, -2.1)])  # lines 0-3
sketch6.addConstraint(Sketcher.Constraint("Horizontal", 0))
sketch6.addConstraint(Sketcher.Constraint("Vertical", 1))
sketch6.addConstraint(Sketcher.Constraint("Horizontal", 2))
sketch6.addConstraint(Sketcher.Constraint("Vertical", 3))
sketch6.addConstraint(Sketcher.Constraint("DistanceX", 0, 2, 0, 1, Q("0.03 in")))
sketch6.addConstraint(Sketcher.Constraint("DistanceY", 1, 2, 1, 1, Q("0.166 in")))
sketch6.addConstraint(Sketcher.Constraint("DistanceX", 0, 2, -1, 1, Q("0.01 in")))
sketch6.addConstraint(Sketcher.Constraint("DistanceY", -1, 1, 0, 2, Q("0.083 in")))
sketch6.setExpression("Constraints[8]", "Params.sketch6_width")
sketch6.setExpression("Constraints[9]", "Params.sketch6_height")
pocket5 = doc.addObject("PartDesign::Pocket", "Pocket004")
body.addObject(pocket5)
pocket5.Profile = sketch6
pocket5.setExpression("Length", "Params.pocket5_length")
pocket5.Midplane = True

# Sketch on XZ plane
sketch7 = doc.addObject("Sketcher::SketchObject", "Sketch006")
body.addObject(sketch7)
sketch7.AttachmentSupport = (doc.XZ_Plane, [""])
sketch7.MapMode = "FlatFace"
add_polygon(sketch7, [(-6.6, -3.05), (-6.6, -2.54), (-6.48, -2.29), (-6.22, -2.29), (-6.1, -2.54), (-4.06, -2.54), (-3.94, -2.29), (-3.68, -2.29), (-3.56, -2.54), (-1.52, -2.54), (-1.4, -2.29), (-1.14, -2.29), (-1.02, -2.54), (1.02, -2.54), (1.14, -2.29), (1.4, -2.29), (1.52, -2.54), (3.56, -2.54), (3.68, -2.29), (3.94, -2.29), (4.06, -2.54), (6.1, -2.54), (6.22, -2.29), (6.48, -2.29), (6.6, -2.54), (6.6, -3.05)])  # lines 0-25
sketch7.addConstraint(Sketcher.Constraint("Vertical", 0))
sketch7.addConstraint(Sketcher.Constraint("Horizontal", 2))
sketch7.addConstraint(Sketcher.Constraint("Horizontal", 4))
sketch7.addConstraint(Sketcher.Constraint("Horizontal", 6))
sketch7.addConstraint(Sketcher.Constraint("Horizontal", 8))
sketch7.addConstraint(Sketcher.Constraint("Horizontal", 10))
sketch7.addConstraint(Sketcher.Constraint("Horizontal", 12))
sketch7.addConstraint(Sketcher.Constraint("Horizontal", 14))
sketch7.addConstraint(Sketcher.Constraint("Horizontal", 16))
sketch7.addConstraint(Sketcher.Constraint("Horizontal", 18))
sketch7.addConstraint(Sketcher.Constraint("Horizontal", 20))
sketch7.addConstraint(Sketcher.Constraint("Horizontal", 22))
sketch7.addConstraint(Sketcher.Constraint("Vertical", 24))
sketch7.addConstraint(Sketcher.Constraint("Horizontal", 25))
sketch7.addConstraint(Sketcher.Constraint("Symmetric", 10, 2, 13, 2, -2))
sketch7.addConstraint(Sketcher.Constraint("Symmetric", 8, 2, 15, 2, -2))
sketch7.addConstraint(Sketcher.Constraint("Symmetric", 6, 2, 17, 2, -2))
sketch7.addConstraint(Sketcher.Constraint("Symmetric", 4, 2, 19, 2, -2))
sketch7.addConstraint(Sketcher.Constraint("Symmetric", 2, 2, 21, 2, -2))
sketch7.addConstraint(Sketcher.Constraint("Symmetric", 0, 2, 23, 2, -2))
sketch7.addConstraint(Sketcher.Constraint("Parallel", 1, 5))
sketch7.addConstraint(Sketcher.Constraint("Parallel", 3, 7))
sketch7.addConstraint(Sketcher.Constraint("Parallel", 5, 9))
sketch7.addConstraint(Sketcher.Constraint("Parallel", 7, 11))
sketch7.addConstraint(Sketcher.Constraint("Parallel", 9, 13))
sketch7.addConstraint(Sketcher.Constraint("Parallel", 11, 15))
sketch7.addConstraint(Sketcher.Constraint("Parallel", 13, 17))
sketch7.addConstraint(Sketcher.Constraint("Parallel", 15, 19))
sketch7.addConstraint(Sketcher.Constraint("Parallel", 17, 21))
sketch7.addConstraint(Sketcher.Constraint("Parallel", 19, 23))
sketch7.addConstraint(Sketcher.Constraint("Horizontal", 0, 2, 3, 2))
sketch7.addConstraint(Sketcher.Constraint("Horizontal", 2, 2, 5, 2))
sketch7.addConstraint(Sketcher.Constraint("Horizontal", 4, 2, 7, 2))
sketch7.addConstraint(Sketcher.Constraint("Horizontal", 6, 2, 9, 2))
sketch7.addConstraint(Sketcher.Constraint("Horizontal", 8, 2, 11, 2))
sketch7.addConstraint(Sketcher.Constraint("Equal", 2, 6))
sketch7.addConstraint(Sketcher.Constraint("Equal", 4, 8))
sketch7.addConstraint(Sketcher.Constraint("Equal", 6, 10))
sketch7.addConstraint(Sketcher.Constraint("Equal", 8, 12))
sketch7.addConstraint(Sketcher.Constraint("Equal", 10, 14))
sketch7.addConstraint(Sketcher.Constraint("DistanceX", 4, 1, 4, 2, Q("0.08 in")))
sketch7.addConstraint(Sketcher.Constraint("DistanceX", 25, 2, 25, 1, Q("0.52 in")))
sketch7.addConstraint(Sketcher.Constraint("DistanceY", 0, 1, 0, 2, Q("0.02 in")))
sketch7.addConstraint(Sketcher.Constraint("DistanceY", 0, 2, -1, 1, Q("0.1 in")))
sketch7.addConstraint(Sketcher.Constraint("DistanceY", 1, 2, -1, 1, Q("0.09 in")))
sketch7.addConstraint(Sketcher.Constraint("DistanceX", 2, 1, 2, 2, 0.2602))
sketch7.setExpression("Constraints[66]", "Params.sketch7_width")
sketch7.setExpression("Constraints[67]", "Params.sketch7_width2")
sketch7.setExpression("Constraints[68]", "Params.sketch7_height")
pocket6 = doc.addObject("PartDesign::Pocket", "Pocket005")
body.addObject(pocket6)
pocket6.Profile = sketch7
pocket6.setExpression("Length", "Params.pocket6_length")
pocket6.Midplane = True

# Sketch on XZ plane
sketch8 = doc.addObject("Sketcher::SketchObject", "Sketch007")
body.addObject(sketch8)
sketch8.AttachmentSupport = (doc.XZ_Plane, [""])
sketch8.MapMode = "FlatFace"
add_polygon(sketch8, [(-6.48, 2.29), (-6.6, 2.54), (-6.6, 4.83), (6.6, 4.83), (6.6, 2.54), (6.48, 2.29), (6.22, 2.29), (6.1, 2.54), (6.1, 3.05), (4.06, 3.05), (4.06, 2.54), (3.94, 2.29), (3.68, 2.29), (3.56, 2.54), (3.56, 3.05), (1.52, 3.05), (1.52, 2.54), (1.4, 2.29), (1.14, 2.29), (1.02, 2.54), (1.02, 3.05), (-1.02, 3.05), (-1.02, 2.54), (-1.14, 2.29), (-1.4, 2.29), (-1.52, 2.54), (-1.52, 3.05), (-3.56, 3.05), (-3.56, 2.54), (-3.68, 2.29), (-3.94, 2.29), (-4.06, 2.54), (-4.06, 3.05), (-6.1, 3.05), (-6.1, 2.54), (-6.22, 2.29)])  # lines 0-35
sketch8.addConstraint(Sketcher.Constraint("Vertical", 1))
sketch8.addConstraint(Sketcher.Constraint("Horizontal", 2))
sketch8.addConstraint(Sketcher.Constraint("Vertical", 3))
sketch8.addConstraint(Sketcher.Constraint("Horizontal", 5))
sketch8.addConstraint(Sketcher.Constraint("Vertical", 7))
sketch8.addConstraint(Sketcher.Constraint("Horizontal", 8))
sketch8.addConstraint(Sketcher.Constraint("Vertical", 9))
sketch8.addConstraint(Sketcher.Constraint("Horizontal", 11))
sketch8.addConstraint(Sketcher.Constraint("Vertical", 13))
sketch8.addConstraint(Sketcher.Constraint("Horizontal", 14))
sketch8.addConstraint(Sketcher.Constraint("Vertical", 15))
sketch8.addConstraint(Sketcher.Constraint("Horizontal", 17))
sketch8.addConstraint(Sketcher.Constraint("Vertical", 19))
sketch8.addConstraint(Sketcher.Constraint("Horizontal", 20))
sketch8.addConstraint(Sketcher.Constraint("Vertical", 21))
sketch8.addConstraint(Sketcher.Constraint("Horizontal", 23))
sketch8.addConstraint(Sketcher.Constraint("Vertical", 25))
sketch8.addConstraint(Sketcher.Constraint("Horizontal", 26))
sketch8.addConstraint(Sketcher.Constraint("Vertical", 27))
sketch8.addConstraint(Sketcher.Constraint("Horizontal", 29))
sketch8.addConstraint(Sketcher.Constraint("Vertical", 31))
sketch8.addConstraint(Sketcher.Constraint("Horizontal", 32))
sketch8.addConstraint(Sketcher.Constraint("Vertical", 33))
sketch8.addConstraint(Sketcher.Constraint("Horizontal", 35))
sketch8.addConstraint(Sketcher.Constraint("Symmetric", 0, 2, 3, 2, -2))
sketch8.addConstraint(Sketcher.Constraint("Symmetric", 18, 2, 21, 2, -2))
sketch8.addConstraint(Sketcher.Constraint("Symmetric", 17, 2, 22, 2, -2))
sketch8.addConstraint(Sketcher.Constraint("Symmetric", 15, 2, 24, 2, -2))
sketch8.addConstraint(Sketcher.Constraint("Symmetric", 13, 2, 26, 2, -2))
sketch8.addConstraint(Sketcher.Constraint("Symmetric", 11, 2, 28, 2, -2))
sketch8.addConstraint(Sketcher.Constraint("Symmetric", 9, 2, 30, 2, -2))
sketch8.addConstraint(Sketcher.Constraint("Symmetric", 7, 2, 32, 2, -2))
sketch8.addConstraint(Sketcher.Constraint("Symmetric", 5, 2, 34, 2, -2))
sketch8.addConstraint(Sketcher.Constraint("Parallel", 0, 6))
sketch8.addConstraint(Sketcher.Constraint("Parallel", 4, 10))
sketch8.addConstraint(Sketcher.Constraint("Parallel", 6, 12))
sketch8.addConstraint(Sketcher.Constraint("Parallel", 10, 16))
sketch8.addConstraint(Sketcher.Constraint("Parallel", 12, 18))
sketch8.addConstraint(Sketcher.Constraint("Parallel", 16, 22))
sketch8.addConstraint(Sketcher.Constraint("Parallel", 18, 24))
sketch8.addConstraint(Sketcher.Constraint("Parallel", 22, 28))
sketch8.addConstraint(Sketcher.Constraint("Parallel", 24, 30))
sketch8.addConstraint(Sketcher.Constraint("Parallel", 28, 34))
sketch8.addConstraint(Sketcher.Constraint("Horizontal", 3, 2, 6, 2))
sketch8.addConstraint(Sketcher.Constraint("Horizontal", 6, 2, 9, 2))
sketch8.addConstraint(Sketcher.Constraint("Horizontal", 5, 2, 10, 2))
sketch8.addConstraint(Sketcher.Constraint("Horizontal", 9, 2, 12, 2))
sketch8.addConstraint(Sketcher.Constraint("Horizontal", 8, 2, 13, 2))
sketch8.addConstraint(Sketcher.Constraint("Horizontal", 12, 2, 15, 2))
sketch8.addConstraint(Sketcher.Constraint("Horizontal", 11, 2, 16, 2))
sketch8.addConstraint(Sketcher.Constraint("Horizontal", 15, 2, 18, 2))
sketch8.addConstraint(Sketcher.Constraint("Horizontal", 14, 2, 19, 2))
sketch8.addConstraint(Sketcher.Constraint("Equal", 5, 11))
sketch8.addConstraint(Sketcher.Constraint("Equal", 8, 14))
sketch8.addConstraint(Sketcher.Constraint("Equal", 11, 17))
sketch8.addConstraint(Sketcher.Constraint("Equal", 14, 20))
sketch8.addConstraint(Sketcher.Constraint("DistanceX", 2, 1, 2, 2, Q("0.52 in")))
sketch8.addConstraint(Sketcher.Constraint("DistanceX", 8, 2, 8, 1, Q("0.08 in")))
sketch8.addConstraint(Sketcher.Constraint("DistanceY", 1, 1, 1, 2, Q("0.09 in")))
sketch8.addConstraint(Sketcher.Constraint("DistanceY", 7, 1, 7, 2, Q("0.02 in")))
sketch8.addConstraint(Sketcher.Constraint("DistanceY", -1, 1, 0, 2, Q("0.1 in")))
sketch8.addConstraint(Sketcher.Constraint("DistanceY", 4, 2, 2, 2, Q("0.1 in")))
sketch8.addConstraint(Sketcher.Constraint("DistanceX", 5, 2, 5, 1, 0.2602))
sketch8.setExpression("Constraints[92]", "Params.sketch8_width")
sketch8.setExpression("Constraints[93]", "Params.sketch8_width2")
sketch8.setExpression("Constraints[94]", "Params.sketch8_height")
sketch8.setExpression("Constraints[95]", "Params.sketch8_height2")
pocket7 = doc.addObject("PartDesign::Pocket", "Pocket006")
body.addObject(pocket7)
pocket7.Profile = sketch8
pocket7.setExpression("Length", "Params.pocket7_length")
pocket7.Midplane = True

# Sketch on XZ plane
sketch9 = doc.addObject("Sketcher::SketchObject", "Sketch008")
body.addObject(sketch9)
sketch9.AttachmentSupport = (doc.XZ_Plane, [""])
sketch9.MapMode = "FlatFace"
add_polygon(sketch9, [(-6.47, -0.51), (-6.6, 0), (-6.47, 0.51), (-6.23, 0.51), (-6.1, 0), (-6.23, -0.51)])  # lines 0-5
sketch9.addConstraint(Sketcher.Constraint("Horizontal", 2))
sketch9.addConstraint(Sketcher.Constraint("Horizontal", 5))
sketch9.addConstraint(Sketcher.Constraint("Symmetric", 2, 2, 4, 2, -1))
sketch9.addConstraint(Sketcher.Constraint("PointOnObject", 0, 2, -1))
sketch9.addConstraint(Sketcher.Constraint("PointOnObject", 3, 2, -1))
sketch9.addConstraint(Sketcher.Constraint("Parallel", 0, 3))
sketch9.addConstraint(Sketcher.Constraint("Parallel", 1, 4))
sketch9.addConstraint(Sketcher.Constraint("DistanceX", 0, 2, -1, 1, Q("0.26 in")))
sketch9.addConstraint(Sketcher.Constraint("DistanceY", -1, 1, 1, 2, Q("0.02 in")))
sketch9.addConstraint(Sketcher.Constraint("DistanceX", 3, 2, -1, 1, Q("0.24 in")))
sketch9.addConstraint(Sketcher.Constraint("DistanceX", 2, 1, 2, 2, Q("0.0092 in")))
pocket8 = doc.addObject("PartDesign::Pocket", "Pocket007")
body.addObject(pocket8)
pocket8.Profile = sketch9
pocket8.setExpression("Length", "Params.pocket8_length")
pocket8.Midplane = True
doc.recompute()

linearpattern = doc.addObject("PartDesign::LinearPattern", "LinearPattern")
body.addObject(linearpattern)
linearpattern.Originals = [pocket8]
linearpattern.Direction = (doc.X_Axis, [""])
linearpattern.Mode = "offset"
linearpattern.setExpression("Offset", "Params.linearpattern_pitch")
linearpattern.Occurrences = 6
body.Tip = linearpattern

doc.recompute()
